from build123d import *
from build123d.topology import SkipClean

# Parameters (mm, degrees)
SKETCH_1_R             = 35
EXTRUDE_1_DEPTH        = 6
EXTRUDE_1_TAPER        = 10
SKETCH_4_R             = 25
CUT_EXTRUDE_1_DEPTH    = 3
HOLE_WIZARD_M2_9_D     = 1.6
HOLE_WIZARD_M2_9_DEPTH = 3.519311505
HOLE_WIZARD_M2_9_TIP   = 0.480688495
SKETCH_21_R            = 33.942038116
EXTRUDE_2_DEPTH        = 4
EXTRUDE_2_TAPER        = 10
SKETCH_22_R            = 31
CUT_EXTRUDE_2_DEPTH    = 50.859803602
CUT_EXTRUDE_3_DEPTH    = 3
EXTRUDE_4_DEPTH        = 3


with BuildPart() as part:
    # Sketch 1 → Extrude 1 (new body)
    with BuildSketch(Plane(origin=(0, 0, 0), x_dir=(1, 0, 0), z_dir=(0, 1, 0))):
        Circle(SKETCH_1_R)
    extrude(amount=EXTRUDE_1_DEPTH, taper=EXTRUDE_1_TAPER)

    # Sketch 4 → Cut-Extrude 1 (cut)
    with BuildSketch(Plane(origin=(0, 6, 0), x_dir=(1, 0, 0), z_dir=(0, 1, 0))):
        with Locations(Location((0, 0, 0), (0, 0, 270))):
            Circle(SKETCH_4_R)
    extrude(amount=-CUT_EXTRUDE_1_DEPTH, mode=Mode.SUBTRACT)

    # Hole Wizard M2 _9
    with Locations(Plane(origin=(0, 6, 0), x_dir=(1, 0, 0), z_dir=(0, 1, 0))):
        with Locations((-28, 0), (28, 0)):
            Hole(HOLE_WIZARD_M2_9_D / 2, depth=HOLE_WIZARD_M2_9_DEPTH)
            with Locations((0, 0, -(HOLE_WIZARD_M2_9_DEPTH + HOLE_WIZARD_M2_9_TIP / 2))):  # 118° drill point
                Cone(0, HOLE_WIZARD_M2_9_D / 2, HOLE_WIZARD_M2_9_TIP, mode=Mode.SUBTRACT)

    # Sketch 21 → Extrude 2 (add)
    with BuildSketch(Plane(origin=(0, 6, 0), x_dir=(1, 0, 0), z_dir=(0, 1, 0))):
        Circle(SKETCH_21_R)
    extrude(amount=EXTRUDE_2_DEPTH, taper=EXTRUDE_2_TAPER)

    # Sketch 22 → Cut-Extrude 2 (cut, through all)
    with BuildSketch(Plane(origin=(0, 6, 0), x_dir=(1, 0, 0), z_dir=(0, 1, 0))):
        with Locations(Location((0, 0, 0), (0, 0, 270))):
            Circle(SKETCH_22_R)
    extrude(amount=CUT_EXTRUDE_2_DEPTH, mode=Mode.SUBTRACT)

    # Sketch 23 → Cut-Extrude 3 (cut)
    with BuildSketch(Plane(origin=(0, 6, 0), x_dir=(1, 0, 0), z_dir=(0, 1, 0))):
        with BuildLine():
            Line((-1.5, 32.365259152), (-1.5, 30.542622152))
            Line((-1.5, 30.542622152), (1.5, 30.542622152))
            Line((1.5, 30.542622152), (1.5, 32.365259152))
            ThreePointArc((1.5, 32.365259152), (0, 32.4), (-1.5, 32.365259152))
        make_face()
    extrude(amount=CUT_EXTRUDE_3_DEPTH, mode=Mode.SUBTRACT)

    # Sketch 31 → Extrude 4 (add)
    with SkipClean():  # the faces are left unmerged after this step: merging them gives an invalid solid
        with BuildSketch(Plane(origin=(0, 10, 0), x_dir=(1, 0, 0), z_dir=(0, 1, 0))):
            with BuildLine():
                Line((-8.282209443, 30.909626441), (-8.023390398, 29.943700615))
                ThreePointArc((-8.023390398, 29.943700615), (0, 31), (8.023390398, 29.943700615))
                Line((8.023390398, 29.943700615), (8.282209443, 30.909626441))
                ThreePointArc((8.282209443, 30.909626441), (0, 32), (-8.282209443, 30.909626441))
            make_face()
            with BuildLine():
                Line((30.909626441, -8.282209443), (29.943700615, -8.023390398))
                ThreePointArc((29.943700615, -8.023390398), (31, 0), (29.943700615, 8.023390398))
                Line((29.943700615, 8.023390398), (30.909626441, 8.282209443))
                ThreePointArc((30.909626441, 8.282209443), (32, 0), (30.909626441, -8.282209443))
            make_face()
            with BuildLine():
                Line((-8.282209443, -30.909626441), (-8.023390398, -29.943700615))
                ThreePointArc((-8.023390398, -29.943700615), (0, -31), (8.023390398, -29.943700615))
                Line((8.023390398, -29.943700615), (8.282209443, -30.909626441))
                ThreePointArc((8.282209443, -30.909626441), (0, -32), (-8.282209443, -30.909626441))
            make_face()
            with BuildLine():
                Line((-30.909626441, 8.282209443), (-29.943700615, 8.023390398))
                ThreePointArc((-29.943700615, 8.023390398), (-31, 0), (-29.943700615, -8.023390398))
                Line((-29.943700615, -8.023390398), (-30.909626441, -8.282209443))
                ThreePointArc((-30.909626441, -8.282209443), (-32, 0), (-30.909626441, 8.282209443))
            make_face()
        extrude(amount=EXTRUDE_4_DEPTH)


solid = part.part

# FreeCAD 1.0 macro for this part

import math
import FreeCAD as App
import Part
import Sketcher

V = App.Vector
Q = App.Units.Quantity

doc = App.newDocument("Part")
body = doc.addObject("PartDesign::Body", "Body")

# Sketch on XZ plane
sketch1 = body.newObject("Sketcher::SketchObject", "Sketch")
sketch1.AttachmentSupport = (doc.getObject("XZ_Plane"), [""])
sketch1.MapMode = "FlatFace"
sketch1.addGeometry(Part.Circle(V(0, 0, 0), V(0, 0, 1), 35), False)
sketch1.addConstraint([
    Sketcher.Constraint("Coincident", 0, 3, -1, 1),
    Sketcher.Constraint("Diameter", 0, 70.0),
])
pad1 = body.newObject("PartDesign::Pad", "Pad")
pad1.Profile = sketch1
pad1.Length = 6
pad1.Reversed = True
pad1.TaperAngle = -10

# Sketch on XZ plane
sketch2 = body.newObject("Sketcher::SketchObject", "Sketch001")
sketch2.AttachmentSupport = (doc.getObject("XZ_Plane"), [""])
sketch2.MapMode = "FlatFace"
sketch2.AttachmentOffset = App.Placement(V(0, 0, -6), App.Rotation())
sketch2.addGeometry(Part.Circle(V(0, 0, 0), V(0, 0, 1), 25), False)
sketch2.addConstraint([
    Sketcher.Constraint("Coincident", 0, 3, -1, 1),
    Sketcher.Constraint("Diameter", 0, 50.0),
])
pocket1 = body.newObject("PartDesign::Pocket", "Pocket")
pocket1.Profile = sketch2
pocket1.Length = 3
pocket1.Reversed = True

# Sketch on XZ plane
sketch3 = body.newObject("Sketcher::SketchObject", "Sketch002")
sketch3.AttachmentSupport = (doc.getObject("XZ_Plane"), [""])
sketch3.MapMode = "FlatFace"
sketch3.AttachmentOffset = App.Placement(V(0, 0, -6), App.Rotation())
sketch3.addGeometry([
    Part.Circle(V(-28, 0, 0), V(0, 0, 1), 0.8),
    Part.Circle(V(28, 0, 0), V(0, 0, 1), 0.8),
], False)
sketch3.addConstraint([
    Sketcher.Constraint("Equal", 0, 1),
    Sketcher.Constraint("Symmetric", 0, 3, 1, 3, -1, 1),
    Sketcher.Constraint("PointOnObject", 0, 3, -1),
    Sketcher.Constraint("Diameter", 0, 1.6),
    Sketcher.Constraint("DistanceX", 0, 3, -1, 1, 28.0),
])
doc.recompute()
hole = body.newObject("PartDesign::Hole", "Hole")
hole.Profile = sketch3
hole.ThreadType = "None"
hole.Diameter = 1.6
hole.DepthType = "Dimension"
hole.Depth = 3.519312
hole.DrillPoint = "Angled"
hole.DrillPointAngle = 118
hole.Reversed = True

# Sketch on XZ plane
sketch4 = body.newObject("Sketcher::SketchObject", "Sketch003")
sketch4.AttachmentSupport = (doc.getObject("XZ_Plane"), [""])
sketch4.MapMode = "FlatFace"
sketch4.AttachmentOffset = App.Placement(V(0, 0, -6), App.Rotation())
sketch4.addGeometry(Part.Circle(V(0, 0, 0), V(0, 0, 1), 34), False)
sketch4.addConstraint([
    Sketcher.Constraint("Coincident", 0, 3, -1, 1),
    Sketcher.Constraint("Diameter", 0, 67.884076),
])
pad2 = body.newObject("PartDesign::Pad", "Pad001")
pad2.Profile = sketch4
pad2.Length = 4
pad2.Reversed = True
pad2.TaperAngle = -10

# Sketch on XZ plane
sketch5 = body.newObject("Sketcher::SketchObject", "Sketch004")
sketch5.AttachmentSupport = (doc.getObject("XZ_Plane"), [""])
sketch5.MapMode = "FlatFace"
sketch5.AttachmentOffset = App.Placement(V(0, 0, -6), App.Rotation())
sketch5.addGeometry(Part.Circle(V(0, 0, 0), V(0, 0, 1), 31), False)
sketch5.addConstraint([
    Sketcher.Constraint("Coincident", 0, 3, -1, 1),
    Sketcher.Constraint("Diameter", 0, 62.0),
])
pocket2 = body.newObject("PartDesign::Pocket", "Pocket001")
pocket2.Profile = sketch5
pocket2.Type = "ThroughAll"

# Sketch on XZ plane
sketch6 = body.newObject("Sketcher::SketchObject", "Sketch005")
sketch6.AttachmentSupport = (doc.getObject("XZ_Plane"), [""])
sketch6.MapMode = "FlatFace"
sketch6.AttachmentOffset = App.Placement(V(0, 0, -6), App.Rotation())
sketch6.addGeometry([
    Part.LineSegment(V(-1.5, -32.4, 0), V(-1.5, -30.5, 0)),
    Part.LineSegment(V(-1.5, -30.5, 0), V(1.5, -30.5, 0)),
    Part.LineSegment(V(1.5, -30.5, 0), V(1.5, -32.4, 0)),
    Part.ArcOfCircle(Part.Circle(V(0, 0, 0), V(0, 0, 1), 32.4), math.radians(-92.65), math.radians(-87.35)),
], False)
sketch6.addConstraint([
    Sketcher.Constraint("Coincident", 0, 2, 1, 1),
    Sketcher.Constraint("Coincident", 1, 2, 2, 1),
    Sketcher.Constraint("Coincident", 2, 2, 3, 2),
    Sketcher.Constraint("Coincident", 3, 1, 0, 1),
    Sketcher.Constraint("Vertical", 0),
    Sketcher.Constraint("Horizontal", 1),
    Sketcher.Constraint("Vertical", 2),
    Sketcher.Constraint("Coincident", 3, 3, -1, 1),
    Sketcher.Constraint("Horizontal", 2, 2, 3, 1),
    Sketcher.Constraint("Radius", 3, 32.4),
    Sketcher.Constraint("DistanceX", 1, 1, 1, 2, 3.0),
    Sketcher.Constraint("DistanceY", 0, 1, 0, 2, 1.822637),
])
pocket3 = body.newObject("PartDesign::Pocket", "Pocket002")
pocket3.Profile = sketch6
pocket3.Length = 3

# Sketch on XZ plane
sketch7 = body.newObject("Sketcher::SketchObject", "Sketch006")
sketch7.AttachmentSupport = (doc.getObject("XZ_Plane"), [""])
sketch7.MapMode = "FlatFace"
sketch7.AttachmentOffset = App.Placement(V(0, 0, -10), App.Rotation())
sketch7.addGeometry([
    Part.LineSegment(V(-8.3, -30.9, 0), V(-8, -29.9, 0)),  # 0
    Part.ArcOfCircle(Part.Circle(V(0, 0, 0), V(0, 0, 1), 31), math.radians(-105), math.radians(-75)),  # 1
    Part.LineSegment(V(8, -29.9, 0), V(8.3, -30.9, 0)),  # 2
    Part.ArcOfCircle(Part.Circle(V(0, 0, 0), V(0, 0, 1), 32), math.radians(-105), math.radians(-75)),  # 3
    Part.LineSegment(V(29.9, 8, 0), V(30.9, 8.3, 0)),  # 4
    Part.ArcOfCircle(Part.Circle(V(0, 0, 0), V(0, 0, 1), 32), math.radians(-15), math.radians(15)),  # 5
    Part.LineSegment(V(30.9, -8.3, 0), V(29.9, -8, 0)),  # 6
    Part.ArcOfCircle(Part.Circle(V(0, 0, 0), V(0, 0, 1), 31), math.radians(-15), math.radians(15)),  # 7
    Part.LineSegment(V(-8, 29.9, 0), V(-8.3, 30.9, 0)),  # 8
    Part.ArcOfCircle(Part.Circle(V(0, 0, 0), V(0, 0, 1), 32), math.radians(75), math.radians(105)),  # 9
    Part.LineSegment(V(8.3, 30.9, 0), V(8, 29.9, 0)),  # 10
    Part.ArcOfCircle(Part.Circle(V(0, 0, 0), V(0, 0, 1), 31), math.radians(75), math.radians(105)),  # 11
    Part.LineSegment(V(-29.9, -8, 0), V(-30.9, -8.3, 0)),  # 12
    Part.ArcOfCircle(Part.Circle(V(0, 0, 0), V(0, 0, 1), 32), math.radians(165), math.radians(195)),  # 13
    Part.LineSegment(V(-30.9, 8.3, 0), V(-29.9, 8, 0)),  # 14
    Part.ArcOfCircle(Part.Circle(V(0, 0, 0), V(0, 0, 1), 31), math.radians(165), math.radians(195)),  # 15
], False)
sketch7.addConstraint([
    Sketcher.Constraint("Coincident", 0, 2, 1, 1),
    Sketcher.Constraint("Coincident", 1, 2, 2, 1),
    Sketcher.Constraint("Coincident", 2, 2, 3, 2),
    Sketcher.Constraint("Coincident", 3, 1, 0, 1),
    Sketcher.Constraint("Coincident", 4, 2, 5, 2),
    Sketcher.Constraint("Coincident", 5, 1, 6, 1),
    Sketcher.Constraint("Coincident", 6, 2, 7, 1),
    Sketcher.Constraint("Coincident", 7, 2, 4, 1),
    Sketcher.Constraint("Coincident", 8, 2, 9, 2),
    Sketcher.Constraint("Coincident", 9, 1, 10, 1),
    Sketcher.Constraint("Coincident", 10, 2, 11, 1),
    Sketcher.Constraint("Coincident", 11, 2, 8, 1),
    Sketcher.Constraint("Coincident", 12, 2, 13, 2),
    Sketcher.Constraint("Coincident", 13, 1, 14, 1),
    Sketcher.Constraint("Coincident", 14, 2, 15, 1),
    Sketcher.Constraint("Coincident", 15, 2, 12, 1),
    Sketcher.Constraint("Coincident", 1, 3, -1, 1),
    Sketcher.Constraint("Coincident", 3, 3, -1, 1),
    Sketcher.Constraint("Coincident", 5, 3, -1, 1),
    Sketcher.Constraint("Coincident", 7, 3, -1, 1),
    Sketcher.Constraint("Coincident", 9, 3, -1, 1),
    Sketcher.Constraint("Coincident", 11, 3, -1, 1),
    Sketcher.Constraint("Coincident", 13, 3, -1, 1),
    Sketcher.Constraint("Coincident", 15, 3, -1, 1),
    Sketcher.Constraint("Equal", 3, 5),
    Sketcher.Constraint("Equal", 1, 7),
    Sketcher.Constraint("Equal", 5, 9),
    Sketcher.Constraint("Equal", 7, 11),
    Sketcher.Constraint("Equal", 9, 13),
    Sketcher.Constraint("Equal", 11, 15),
    Sketcher.Constraint("Perpendicular", 2, 4),
    Sketcher.Constraint("Perpendicular", 0, 6),
    Sketcher.Constraint("Perpendicular", 4, 8),
    Sketcher.Constraint("Perpendicular", 6, 10),
    Sketcher.Constraint("Perpendicular", 8, 12),
    Sketcher.Constraint("Perpendicular", 10, 14),
    Sketcher.Constraint("Horizontal", 0, 2, 1, 2),
    Sketcher.Constraint("Horizontal", 2, 2, 3, 1),
    Sketcher.Constraint("Horizontal", 8, 2, 9, 1),
    Sketcher.Constraint("Horizontal", 5, 1, 12, 2),
    Sketcher.Constraint("Horizontal", 4, 2, 13, 1),
    Sketcher.Constraint("Vertical", 4, 2, 5, 1),
    Sketcher.Constraint("Vertical", 3, 1, 8, 2),
    Sketcher.Constraint("Radius", 1, 31.0),
    Sketcher.Constraint("Radius", 3, 32.0),
    Sketcher.Constraint("Angle", 0, Q("75 deg")),
    Sketcher.Constraint("DistanceY", 0, 2, -1, 1, 29.943701),
    Sketcher.Constraint("DistanceX", -1, 1, 6, 2, 29.943701),
])
pad3 = body.newObject("PartDesign::Pad", "Pad002")
pad3.Profile = sketch7
pad3.Length = 3
pad3.Reversed = True

doc.recompute()
